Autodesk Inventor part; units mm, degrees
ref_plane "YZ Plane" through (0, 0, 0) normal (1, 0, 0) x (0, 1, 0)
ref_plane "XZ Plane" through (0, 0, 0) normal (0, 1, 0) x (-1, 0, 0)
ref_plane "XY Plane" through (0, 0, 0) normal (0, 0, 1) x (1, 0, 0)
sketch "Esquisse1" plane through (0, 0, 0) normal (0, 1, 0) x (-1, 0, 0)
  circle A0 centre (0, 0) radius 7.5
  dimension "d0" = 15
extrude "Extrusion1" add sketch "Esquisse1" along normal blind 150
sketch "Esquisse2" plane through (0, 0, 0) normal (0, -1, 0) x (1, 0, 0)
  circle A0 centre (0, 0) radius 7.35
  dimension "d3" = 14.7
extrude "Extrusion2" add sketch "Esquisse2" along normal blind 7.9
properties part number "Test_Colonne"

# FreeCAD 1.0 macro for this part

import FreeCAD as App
import Part
import Sketcher

V = App.Vector

doc = App.newDocument("Part")
body = doc.addObject("PartDesign::Body", "Body")

# Sketch on XZ plane
sketch1 = body.newObject("Sketcher::SketchObject", "Sketch")
sketch1.AttachmentSupport = (doc.getObject("XZ_Plane"), [""])
sketch1.MapMode = "FlatFace"
sketch1.addGeometry(Part.Circle(V(0, 0, 0), V(0, 0, 1), 8), False)
sketch1.addConstraint([
    Sketcher.Constraint("Coincident", 0, 3, -1, 1),
    Sketcher.Constraint("Diameter", 0, 15.0),
])
pad1 = body.newObject("PartDesign::Pad", "Pad")
pad1.Profile = sketch1
pad1.Length = 150
pad1.Reversed = True

# Sketch on XZ plane
sketch2 = body.newObject("Sketcher::SketchObject", "Sketch001")
sketch2.AttachmentSupport = (doc.getObject("XZ_Plane"), [""])
sketch2.MapMode = "FlatFace"
sketch2.addGeometry(Part.Circle(V(0, 0, 0), V(0, 0, 1), 7), False)
sketch2.addConstraint([
    Sketcher.Constraint("Coincident", 0, 3, -1, 1),
    Sketcher.Constraint("Diameter", 0, 14.7),
])
pad2 = body.newObject("PartDesign::Pad", "Pad001")
pad2.Profile = sketch2
pad2.Length = 7.9

doc.recompute()
